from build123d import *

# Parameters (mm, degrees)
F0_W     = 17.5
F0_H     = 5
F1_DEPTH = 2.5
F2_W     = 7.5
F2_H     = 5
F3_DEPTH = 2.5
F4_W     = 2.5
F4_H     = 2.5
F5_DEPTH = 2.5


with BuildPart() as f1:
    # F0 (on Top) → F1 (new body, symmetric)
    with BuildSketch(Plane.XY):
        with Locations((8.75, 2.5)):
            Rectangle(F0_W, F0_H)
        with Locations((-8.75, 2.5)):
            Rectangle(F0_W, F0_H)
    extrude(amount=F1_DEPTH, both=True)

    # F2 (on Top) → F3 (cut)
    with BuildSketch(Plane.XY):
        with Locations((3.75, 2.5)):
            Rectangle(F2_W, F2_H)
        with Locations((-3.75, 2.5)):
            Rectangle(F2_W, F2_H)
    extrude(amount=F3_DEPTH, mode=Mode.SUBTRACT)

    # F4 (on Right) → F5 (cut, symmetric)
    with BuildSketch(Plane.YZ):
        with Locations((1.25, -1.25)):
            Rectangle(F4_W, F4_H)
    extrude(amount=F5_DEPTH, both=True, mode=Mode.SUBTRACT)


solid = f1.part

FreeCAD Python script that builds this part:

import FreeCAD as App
import Part
import Sketcher

doc = App.newDocument("Part")
body = doc.addObject("PartDesign::Body", "Body")

# Sketch on XY plane
sketch1 = body.newObject("Sketcher::SketchObject", "Sketch")
sketch1.AttachmentSupport = (doc.getObject("XY_Plane"), [""])
sketch1.MapMode = "FlatFace"
sketch1.addGeometry([
    Part.LineSegment(App.Vector(18, 0, 0), App.Vector(18, 5, 0)),
    Part.LineSegment(App.Vector(18, 5, 0), App.Vector(-18, 5, 0)),
    Part.LineSegment(App.Vector(-18, 5, 0), App.Vector(-18, 0, 0)),
    Part.LineSegment(App.Vector(-18, 0, 0), App.Vector(18, 0, 0)),
], False)
sketch1.addConstraint([
    Sketcher.Constraint("Coincident", 0, 2, 1, 1),
    Sketcher.Constraint("Coincident", 1, 2, 2, 1),
    Sketcher.Constraint("Coincident", 2, 2, 3, 1),
    Sketcher.Constraint("Coincident", 3, 2, 0, 1),
    Sketcher.Constraint("Vertical", 0),
    Sketcher.Constraint("Horizontal", 1),
    Sketcher.Constraint("Vertical", 2),
    Sketcher.Constraint("Horizontal", 3),
    Sketcher.Constraint("Symmetric", 2, 2, 3, 2, -1, 1),
    Sketcher.Constraint("DistanceX", 1, 2, 1, 1, 35.0),
    Sketcher.Constraint("DistanceY", 0, 1, 0, 2, 5.0),
])
pad1 = body.newObject("PartDesign::Pad", "Pad")
pad1.Profile = sketch1
pad1.Length = 5
pad1.Midplane = True

# Sketch on XY plane
sketch2 = body.newObject("Sketcher::SketchObject", "Sketch001")
sketch2.AttachmentSupport = (doc.getObject("XY_Plane"), [""])
sketch2.MapMode = "FlatFace"
sketch2.addGeometry([
    Part.LineSegment(App.Vector(8, 0, 0), App.Vector(8, 5, 0)),
    Part.LineSegment(App.Vector(8, 5, 0), App.Vector(-8, 5, 0)),
    Part.LineSegment(App.Vector(-8, 5, 0), App.Vector(-8, 0, 0)),
    Part.LineSegment(App.Vector(-8, 0, 0), App.Vector(8, 0, 0)),
], False)
sketch2.addConstraint([
    Sketcher.Constraint("Coincident", 0, 2, 1, 1),
    Sketcher.Constraint("Coincident", 1, 2, 2, 1),
    Sketcher.Constraint("Coincident", 2, 2, 3, 1),
    Sketcher.Constraint("Coincident", 3, 2, 0, 1),
    Sketcher.Constraint("Vertical", 0),
    Sketcher.Constraint("Horizontal", 1),
    Sketcher.Constraint("Vertical", 2),
    Sketcher.Constraint("Horizontal", 3),
    Sketcher.Constraint("Symmetric", 2, 2, 3, 2, -1, 1),
    Sketcher.Constraint("DistanceX", 1, 2, 1, 1, 15.0),
    Sketcher.Constraint("DistanceY", 0, 1, 0, 2, 5.0),
])
pocket1 = body.newObject("PartDesign::Pocket", "Pocket")
pocket1.Profile = sketch2
pocket1.Length = 2.5
pocket1.Reversed = True

# Sketch on YZ plane
sketch3 = body.newObject("Sketcher::SketchObject", "Sketch002")
sketch3.AttachmentSupport = (doc.getObject("YZ_Plane"), [""])
sketch3.MapMode = "FlatFace"
sketch3.addGeometry([
    Part.LineSegment(App.Vector(0, 0, 0), App.Vector(0, -2.5, 0)),
    Part.LineSegment(App.Vector(0, -2.5, 0), App.Vector(2.5, -2.5, 0)),
    Part.LineSegment(App.Vector(2.5, -2.5, 0), App.Vector(2.5, 0, 0)),
    Part.LineSegment(App.Vector(2.5, 0, 0), App.Vector(0, 0, 0)),
], False)
sketch3.addConstraint([
    Sketcher.Constraint("Coincident", 0, 2, 1, 1),
    Sketcher.Constraint("Coincident", 1, 2, 2, 1),
    Sketcher.Constraint("Coincident", 2, 2, 3, 1),
    Sketcher.Constraint("Coincident", 3, 2, 0, 1),
    Sketcher.Constraint("Vertical", 0),
    Sketcher.Constraint("Horizontal", 1),
    Sketcher.Constraint("Vertical", 2),
    Sketcher.Constraint("Horizontal", 3),
    Sketcher.Constraint("Coincident", 3, 2, -1, 1),
    Sketcher.Constraint("Equal", 3, 0),
    Sketcher.Constraint("DistanceX", 1, 1, 1, 2, 2.5),
])
pocket2 = body.newObject("PartDesign::Pocket", "Pocket001")
pocket2.Profile = sketch3
pocket2.Length = 5
pocket2.Midplane = True

doc.recompute()
